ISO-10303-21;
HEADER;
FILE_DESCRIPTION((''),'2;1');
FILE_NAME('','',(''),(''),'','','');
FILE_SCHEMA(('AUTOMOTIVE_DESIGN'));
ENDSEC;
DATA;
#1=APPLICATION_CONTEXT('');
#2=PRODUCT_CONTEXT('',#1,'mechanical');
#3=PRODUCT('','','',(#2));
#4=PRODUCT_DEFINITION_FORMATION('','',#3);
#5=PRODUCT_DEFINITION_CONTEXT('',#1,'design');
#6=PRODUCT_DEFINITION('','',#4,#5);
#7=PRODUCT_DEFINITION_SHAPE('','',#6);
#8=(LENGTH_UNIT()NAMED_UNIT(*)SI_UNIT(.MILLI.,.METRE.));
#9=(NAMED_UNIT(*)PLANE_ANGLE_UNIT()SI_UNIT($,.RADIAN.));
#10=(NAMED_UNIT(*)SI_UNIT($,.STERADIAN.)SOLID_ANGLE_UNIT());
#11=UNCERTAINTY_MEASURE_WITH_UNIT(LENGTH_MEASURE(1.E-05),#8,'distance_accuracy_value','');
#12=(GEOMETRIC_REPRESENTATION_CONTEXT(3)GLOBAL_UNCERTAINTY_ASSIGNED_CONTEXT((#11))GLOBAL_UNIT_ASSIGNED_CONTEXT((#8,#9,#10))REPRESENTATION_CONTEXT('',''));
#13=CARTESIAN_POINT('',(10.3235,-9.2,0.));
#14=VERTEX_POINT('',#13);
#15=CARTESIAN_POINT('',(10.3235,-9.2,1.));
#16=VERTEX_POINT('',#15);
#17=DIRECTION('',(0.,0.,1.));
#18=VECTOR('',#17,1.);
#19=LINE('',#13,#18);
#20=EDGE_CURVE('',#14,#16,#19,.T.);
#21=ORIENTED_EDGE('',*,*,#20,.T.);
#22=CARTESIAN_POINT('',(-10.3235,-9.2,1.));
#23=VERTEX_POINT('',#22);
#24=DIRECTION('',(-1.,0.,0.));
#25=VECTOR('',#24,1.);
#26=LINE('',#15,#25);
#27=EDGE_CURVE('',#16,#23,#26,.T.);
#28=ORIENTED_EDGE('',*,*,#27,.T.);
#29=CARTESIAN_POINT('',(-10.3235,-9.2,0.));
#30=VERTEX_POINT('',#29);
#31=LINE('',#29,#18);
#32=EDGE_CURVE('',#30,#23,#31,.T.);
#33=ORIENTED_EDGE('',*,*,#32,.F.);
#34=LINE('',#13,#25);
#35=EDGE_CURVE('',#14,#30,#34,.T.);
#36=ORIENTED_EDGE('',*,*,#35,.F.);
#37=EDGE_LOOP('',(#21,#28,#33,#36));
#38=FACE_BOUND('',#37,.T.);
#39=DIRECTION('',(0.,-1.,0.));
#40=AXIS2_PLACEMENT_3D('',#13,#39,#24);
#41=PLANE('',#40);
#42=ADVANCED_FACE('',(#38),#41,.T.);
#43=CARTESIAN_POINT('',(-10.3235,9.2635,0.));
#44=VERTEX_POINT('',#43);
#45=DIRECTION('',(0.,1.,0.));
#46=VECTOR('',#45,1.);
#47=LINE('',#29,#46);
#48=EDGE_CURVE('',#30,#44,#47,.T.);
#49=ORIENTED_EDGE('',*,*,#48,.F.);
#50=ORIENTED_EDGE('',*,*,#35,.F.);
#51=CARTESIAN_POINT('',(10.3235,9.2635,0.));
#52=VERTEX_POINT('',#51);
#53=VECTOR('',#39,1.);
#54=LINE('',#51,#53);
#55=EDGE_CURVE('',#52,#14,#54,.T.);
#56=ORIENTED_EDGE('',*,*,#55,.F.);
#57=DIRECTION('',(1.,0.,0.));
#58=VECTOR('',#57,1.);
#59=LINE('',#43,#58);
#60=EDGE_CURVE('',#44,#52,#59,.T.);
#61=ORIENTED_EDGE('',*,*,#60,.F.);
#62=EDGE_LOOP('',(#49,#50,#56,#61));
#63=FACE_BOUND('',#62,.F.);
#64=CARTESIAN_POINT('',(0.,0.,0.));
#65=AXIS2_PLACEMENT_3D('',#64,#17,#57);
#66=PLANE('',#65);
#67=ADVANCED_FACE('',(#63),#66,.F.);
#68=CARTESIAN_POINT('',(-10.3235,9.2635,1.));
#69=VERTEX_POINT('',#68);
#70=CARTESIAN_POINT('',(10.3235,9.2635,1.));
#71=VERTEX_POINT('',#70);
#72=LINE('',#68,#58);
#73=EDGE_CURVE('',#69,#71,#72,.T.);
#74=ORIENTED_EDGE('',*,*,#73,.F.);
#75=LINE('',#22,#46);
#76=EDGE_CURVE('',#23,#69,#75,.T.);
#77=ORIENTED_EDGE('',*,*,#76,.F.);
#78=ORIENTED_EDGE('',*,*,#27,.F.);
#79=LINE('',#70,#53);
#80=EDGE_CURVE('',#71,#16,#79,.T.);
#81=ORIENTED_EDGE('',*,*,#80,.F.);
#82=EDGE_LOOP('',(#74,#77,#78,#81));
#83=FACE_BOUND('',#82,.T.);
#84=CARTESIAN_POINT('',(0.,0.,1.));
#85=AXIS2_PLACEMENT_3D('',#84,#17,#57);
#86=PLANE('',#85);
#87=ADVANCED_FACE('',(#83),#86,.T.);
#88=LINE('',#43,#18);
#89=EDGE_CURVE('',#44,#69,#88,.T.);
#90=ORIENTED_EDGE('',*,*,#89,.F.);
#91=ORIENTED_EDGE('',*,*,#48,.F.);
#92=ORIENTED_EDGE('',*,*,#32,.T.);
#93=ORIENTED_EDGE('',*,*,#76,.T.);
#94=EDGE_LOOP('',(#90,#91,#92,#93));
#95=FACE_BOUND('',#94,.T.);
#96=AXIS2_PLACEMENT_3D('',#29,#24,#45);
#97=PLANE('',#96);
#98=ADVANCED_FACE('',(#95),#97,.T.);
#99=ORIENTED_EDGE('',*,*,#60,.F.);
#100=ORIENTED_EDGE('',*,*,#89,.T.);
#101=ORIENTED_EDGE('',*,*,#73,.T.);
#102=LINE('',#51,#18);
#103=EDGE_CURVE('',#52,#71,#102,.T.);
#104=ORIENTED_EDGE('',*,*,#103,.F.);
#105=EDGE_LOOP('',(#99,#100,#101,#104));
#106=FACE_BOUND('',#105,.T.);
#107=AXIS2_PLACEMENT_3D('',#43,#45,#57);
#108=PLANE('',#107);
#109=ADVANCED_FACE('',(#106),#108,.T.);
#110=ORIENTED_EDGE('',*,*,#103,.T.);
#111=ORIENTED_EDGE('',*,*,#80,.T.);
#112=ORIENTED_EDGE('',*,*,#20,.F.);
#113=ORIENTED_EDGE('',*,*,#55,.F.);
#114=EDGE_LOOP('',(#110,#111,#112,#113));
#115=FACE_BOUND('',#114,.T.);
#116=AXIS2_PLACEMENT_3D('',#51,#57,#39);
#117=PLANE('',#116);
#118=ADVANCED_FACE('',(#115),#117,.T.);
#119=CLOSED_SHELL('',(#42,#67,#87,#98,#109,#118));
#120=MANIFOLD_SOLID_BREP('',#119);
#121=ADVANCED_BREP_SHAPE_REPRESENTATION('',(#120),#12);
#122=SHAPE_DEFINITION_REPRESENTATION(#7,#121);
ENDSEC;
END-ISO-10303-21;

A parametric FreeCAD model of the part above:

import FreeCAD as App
import Part
import Sketcher
from FreeCAD import Vector

doc = App.newDocument("Part")
params = doc.addObject("Spreadsheet::Sheet", "Params")
for row, (alias, value) in enumerate([
    ("pad1_length", "1 mm"),
], start=1):
    params.set(f"A{row}", alias)
    params.set(f"B{row}", "=" + value)
    params.setAlias(f"B{row}", alias)

body = doc.addObject("PartDesign::Body", "Body")

# Sketch on XY plane
sketch1 = body.newObject("Sketcher::SketchObject", "Sketch")
sketch1.AttachmentSupport = (doc.getObject("XY_Plane"), [""])
sketch1.MapMode = "FlatFace"
sketch1.addGeometry([
    Part.LineSegment(Vector(10, 9, 0), Vector(-10, 9, 0)),
    Part.LineSegment(Vector(-10, 9, 0), Vector(-10, -9, 0)),
    Part.LineSegment(Vector(-10, -9, 0), Vector(10, -9, 0)),
    Part.LineSegment(Vector(10, -9, 0), Vector(10, 9, 0)),
], False)
sketch1.addConstraint([
    Sketcher.Constraint("Coincident", 0, 2, 1, 1),
    Sketcher.Constraint("Coincident", 1, 2, 2, 1),
    Sketcher.Constraint("Coincident", 2, 2, 3, 1),
    Sketcher.Constraint("Coincident", 3, 2, 0, 1),
    Sketcher.Constraint("Horizontal", 0),
    Sketcher.Constraint("Vertical", 1),
    Sketcher.Constraint("Horizontal", 2),
    Sketcher.Constraint("Vertical", 3),
    Sketcher.Constraint("DistanceY", 1, 2, -1, 1, 9.2),
    Sketcher.Constraint("DistanceX", 0, 2, 0, 1, 20.647),
    Sketcher.Constraint("DistanceY", 1, 2, 1, 1, 18.4635),
    Sketcher.Constraint("DistanceX", 0, 2, -1, 1, 10.3235),
])
pad1 = body.newObject("PartDesign::Pad", "Pad")
pad1.Profile = sketch1
pad1.setExpression("Length", "Params.pad1_length")

doc.recompute()
